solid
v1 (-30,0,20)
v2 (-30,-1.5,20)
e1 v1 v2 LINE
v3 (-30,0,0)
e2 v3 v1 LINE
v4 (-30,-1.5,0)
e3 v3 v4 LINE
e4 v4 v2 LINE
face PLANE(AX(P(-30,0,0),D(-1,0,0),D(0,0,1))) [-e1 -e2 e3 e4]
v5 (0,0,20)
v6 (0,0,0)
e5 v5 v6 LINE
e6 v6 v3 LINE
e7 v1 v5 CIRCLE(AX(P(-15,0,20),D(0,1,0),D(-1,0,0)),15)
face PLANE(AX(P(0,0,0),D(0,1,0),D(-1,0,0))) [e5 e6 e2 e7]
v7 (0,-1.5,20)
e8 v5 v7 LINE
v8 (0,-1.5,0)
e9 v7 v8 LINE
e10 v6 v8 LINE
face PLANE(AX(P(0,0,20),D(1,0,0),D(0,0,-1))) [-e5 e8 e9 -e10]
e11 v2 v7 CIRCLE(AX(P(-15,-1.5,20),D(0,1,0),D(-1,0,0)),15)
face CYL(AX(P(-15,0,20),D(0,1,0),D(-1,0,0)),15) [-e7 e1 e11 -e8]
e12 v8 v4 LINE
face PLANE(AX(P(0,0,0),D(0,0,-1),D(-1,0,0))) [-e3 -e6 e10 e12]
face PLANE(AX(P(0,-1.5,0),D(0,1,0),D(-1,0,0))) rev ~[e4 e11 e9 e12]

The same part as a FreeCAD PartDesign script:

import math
import FreeCAD as App
import Part
import Sketcher
from FreeCAD import Vector
Q = App.Units.Quantity

doc = App.newDocument("Part")
body = doc.addObject("PartDesign::Body", "Body")

# Sketch on XZ plane
sketch1 = body.newObject("Sketcher::SketchObject", "Sketch")
sketch1.AttachmentSupport = (doc.getObject("XZ_Plane"), [""])
sketch1.MapMode = "FlatFace"
sketch1.addGeometry(Part.ArcOfCircle(Part.Circle(Vector(-15, 20, 0), Vector(0, 0, 1), 15), math.radians(0), math.radians(180)), False)
sketch1.addGeometry(Part.LineSegment(Vector(0, 20, 0), Vector(0, 0, 0)), False)
sketch1.addGeometry(Part.LineSegment(Vector(0, 0, 0), Vector(-30, 0, 0)), False)
sketch1.addGeometry(Part.LineSegment(Vector(-30, 0, 0), Vector(-30, 20, 0)), False)
sketch1.addConstraint(Sketcher.Constraint("Tangent", 0, 1, 1, 1))
sketch1.addConstraint(Sketcher.Constraint("Coincident", 1, 2, 2, 1))
sketch1.addConstraint(Sketcher.Constraint("Coincident", 2, 2, 3, 1))
sketch1.addConstraint(Sketcher.Constraint("Tangent", 3, 2, 0, 2))
sketch1.addConstraint(Sketcher.Constraint("Vertical", 1))
sketch1.addConstraint(Sketcher.Constraint("Horizontal", 2))
sketch1.addConstraint(Sketcher.Constraint("Vertical", 3))
sketch1.addConstraint(Sketcher.Constraint("Coincident", 1, 2, -1, 1))
sketch1.addConstraint(Sketcher.Constraint("Radius", 0, Q("15 mm")))
sketch1.addConstraint(Sketcher.Constraint("DistanceY", 1, 2, 1, 1, Q("20 mm")))
pad1 = body.newObject("PartDesign::Pad", "Pad")
pad1.Profile = sketch1
pad1.Length = 1.5

doc.recompute()
